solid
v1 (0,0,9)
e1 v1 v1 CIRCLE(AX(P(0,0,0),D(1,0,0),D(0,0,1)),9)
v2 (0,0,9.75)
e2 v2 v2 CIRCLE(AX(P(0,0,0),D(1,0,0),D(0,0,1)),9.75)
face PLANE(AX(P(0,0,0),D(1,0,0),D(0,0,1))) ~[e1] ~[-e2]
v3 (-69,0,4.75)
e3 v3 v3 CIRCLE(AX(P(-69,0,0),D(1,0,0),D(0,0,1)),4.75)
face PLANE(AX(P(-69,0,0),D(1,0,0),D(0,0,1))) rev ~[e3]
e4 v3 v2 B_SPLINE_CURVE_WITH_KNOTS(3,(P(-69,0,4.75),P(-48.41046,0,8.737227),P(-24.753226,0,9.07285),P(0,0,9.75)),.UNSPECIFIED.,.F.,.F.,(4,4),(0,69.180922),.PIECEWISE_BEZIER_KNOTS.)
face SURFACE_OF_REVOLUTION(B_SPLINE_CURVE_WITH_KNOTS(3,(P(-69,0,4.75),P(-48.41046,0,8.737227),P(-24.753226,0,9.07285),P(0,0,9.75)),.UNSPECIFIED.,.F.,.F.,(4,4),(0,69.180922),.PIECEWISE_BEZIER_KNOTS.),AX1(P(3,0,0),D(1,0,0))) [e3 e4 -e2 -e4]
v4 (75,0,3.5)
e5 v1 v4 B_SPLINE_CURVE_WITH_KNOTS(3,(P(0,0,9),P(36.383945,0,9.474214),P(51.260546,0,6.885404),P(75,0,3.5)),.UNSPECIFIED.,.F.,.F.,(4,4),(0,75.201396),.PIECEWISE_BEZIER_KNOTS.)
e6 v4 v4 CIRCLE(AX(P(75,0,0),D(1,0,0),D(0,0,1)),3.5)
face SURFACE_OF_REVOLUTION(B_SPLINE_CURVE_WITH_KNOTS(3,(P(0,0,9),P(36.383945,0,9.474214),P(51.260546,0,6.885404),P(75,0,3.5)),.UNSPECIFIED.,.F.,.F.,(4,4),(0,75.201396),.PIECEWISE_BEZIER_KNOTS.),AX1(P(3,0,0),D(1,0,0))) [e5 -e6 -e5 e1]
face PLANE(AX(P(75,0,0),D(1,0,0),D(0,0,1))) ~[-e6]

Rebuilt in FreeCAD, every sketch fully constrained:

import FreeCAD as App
import Part
import Sketcher

V = App.Vector

doc = App.newDocument("Part")
body = doc.addObject("PartDesign::Body", "Body")

# Sketch on XZ plane
sketch1 = doc.addObject("Sketcher::SketchObject", "Sketch")
body.addObject(sketch1)
sketch1.AttachmentSupport = (doc.XZ_Plane, [""])
sketch1.MapMode = "FlatFace"
sketch1.addGeometry([
    Part.LineSegment(V(75, 0, 0), V(75, 3.5, 0)),  # 0
    Part.BSplineCurve([V(0, 9, 0), V(36.383945, 9.474214, 0), V(51.260546, 6.885404, 0), V(75, 3.5, 0)], [4, 4], [0, 75.201396], False, 3, [1, 1, 1, 1], False),  # 1
    Part.LineSegment(V(0, 9, 0), V(0, 9.75, 0)),  # 2
    Part.BSplineCurve([V(-69, 4.75, 0), V(-48.41046, 8.737227, 0), V(-24.753226, 9.07285, 0), V(0, 9.75, 0)], [4, 4], [0, 69.180922], False, 3, [1, 1, 1, 1], False),  # 3
    Part.LineSegment(V(-69, 4.75, 0), V(-69, 0, 0)),  # 4
    Part.LineSegment(V(-69, 0, 0), V(75, 0, 0)),  # 5
], False)
sketch1.addConstraint([
    Sketcher.Constraint("Block", 1),
    Sketcher.Constraint("Block", 3),
    Sketcher.Constraint("Coincident", 0, 2, 1, 2),
    Sketcher.Constraint("Coincident", 1, 1, 2, 1),
    Sketcher.Constraint("Coincident", 2, 2, 3, 2),
    Sketcher.Constraint("Coincident", 3, 1, 4, 1),
    Sketcher.Constraint("Coincident", 4, 2, 5, 1),
    Sketcher.Constraint("Coincident", 5, 2, 0, 1),
    Sketcher.Constraint("Vertical", 0),
    Sketcher.Constraint("Vertical", 4),
    Sketcher.Constraint("Horizontal", 5),
    Sketcher.Constraint("PointOnObject", 4, 2, -1),
])
revolution = doc.addObject("PartDesign::Revolution", "Revolution")
body.addObject(revolution)
revolution.Profile = sketch1
revolution.ReferenceAxis = (sketch1, ["H_Axis"])
revolution.Angle = 360

doc.recompute()
